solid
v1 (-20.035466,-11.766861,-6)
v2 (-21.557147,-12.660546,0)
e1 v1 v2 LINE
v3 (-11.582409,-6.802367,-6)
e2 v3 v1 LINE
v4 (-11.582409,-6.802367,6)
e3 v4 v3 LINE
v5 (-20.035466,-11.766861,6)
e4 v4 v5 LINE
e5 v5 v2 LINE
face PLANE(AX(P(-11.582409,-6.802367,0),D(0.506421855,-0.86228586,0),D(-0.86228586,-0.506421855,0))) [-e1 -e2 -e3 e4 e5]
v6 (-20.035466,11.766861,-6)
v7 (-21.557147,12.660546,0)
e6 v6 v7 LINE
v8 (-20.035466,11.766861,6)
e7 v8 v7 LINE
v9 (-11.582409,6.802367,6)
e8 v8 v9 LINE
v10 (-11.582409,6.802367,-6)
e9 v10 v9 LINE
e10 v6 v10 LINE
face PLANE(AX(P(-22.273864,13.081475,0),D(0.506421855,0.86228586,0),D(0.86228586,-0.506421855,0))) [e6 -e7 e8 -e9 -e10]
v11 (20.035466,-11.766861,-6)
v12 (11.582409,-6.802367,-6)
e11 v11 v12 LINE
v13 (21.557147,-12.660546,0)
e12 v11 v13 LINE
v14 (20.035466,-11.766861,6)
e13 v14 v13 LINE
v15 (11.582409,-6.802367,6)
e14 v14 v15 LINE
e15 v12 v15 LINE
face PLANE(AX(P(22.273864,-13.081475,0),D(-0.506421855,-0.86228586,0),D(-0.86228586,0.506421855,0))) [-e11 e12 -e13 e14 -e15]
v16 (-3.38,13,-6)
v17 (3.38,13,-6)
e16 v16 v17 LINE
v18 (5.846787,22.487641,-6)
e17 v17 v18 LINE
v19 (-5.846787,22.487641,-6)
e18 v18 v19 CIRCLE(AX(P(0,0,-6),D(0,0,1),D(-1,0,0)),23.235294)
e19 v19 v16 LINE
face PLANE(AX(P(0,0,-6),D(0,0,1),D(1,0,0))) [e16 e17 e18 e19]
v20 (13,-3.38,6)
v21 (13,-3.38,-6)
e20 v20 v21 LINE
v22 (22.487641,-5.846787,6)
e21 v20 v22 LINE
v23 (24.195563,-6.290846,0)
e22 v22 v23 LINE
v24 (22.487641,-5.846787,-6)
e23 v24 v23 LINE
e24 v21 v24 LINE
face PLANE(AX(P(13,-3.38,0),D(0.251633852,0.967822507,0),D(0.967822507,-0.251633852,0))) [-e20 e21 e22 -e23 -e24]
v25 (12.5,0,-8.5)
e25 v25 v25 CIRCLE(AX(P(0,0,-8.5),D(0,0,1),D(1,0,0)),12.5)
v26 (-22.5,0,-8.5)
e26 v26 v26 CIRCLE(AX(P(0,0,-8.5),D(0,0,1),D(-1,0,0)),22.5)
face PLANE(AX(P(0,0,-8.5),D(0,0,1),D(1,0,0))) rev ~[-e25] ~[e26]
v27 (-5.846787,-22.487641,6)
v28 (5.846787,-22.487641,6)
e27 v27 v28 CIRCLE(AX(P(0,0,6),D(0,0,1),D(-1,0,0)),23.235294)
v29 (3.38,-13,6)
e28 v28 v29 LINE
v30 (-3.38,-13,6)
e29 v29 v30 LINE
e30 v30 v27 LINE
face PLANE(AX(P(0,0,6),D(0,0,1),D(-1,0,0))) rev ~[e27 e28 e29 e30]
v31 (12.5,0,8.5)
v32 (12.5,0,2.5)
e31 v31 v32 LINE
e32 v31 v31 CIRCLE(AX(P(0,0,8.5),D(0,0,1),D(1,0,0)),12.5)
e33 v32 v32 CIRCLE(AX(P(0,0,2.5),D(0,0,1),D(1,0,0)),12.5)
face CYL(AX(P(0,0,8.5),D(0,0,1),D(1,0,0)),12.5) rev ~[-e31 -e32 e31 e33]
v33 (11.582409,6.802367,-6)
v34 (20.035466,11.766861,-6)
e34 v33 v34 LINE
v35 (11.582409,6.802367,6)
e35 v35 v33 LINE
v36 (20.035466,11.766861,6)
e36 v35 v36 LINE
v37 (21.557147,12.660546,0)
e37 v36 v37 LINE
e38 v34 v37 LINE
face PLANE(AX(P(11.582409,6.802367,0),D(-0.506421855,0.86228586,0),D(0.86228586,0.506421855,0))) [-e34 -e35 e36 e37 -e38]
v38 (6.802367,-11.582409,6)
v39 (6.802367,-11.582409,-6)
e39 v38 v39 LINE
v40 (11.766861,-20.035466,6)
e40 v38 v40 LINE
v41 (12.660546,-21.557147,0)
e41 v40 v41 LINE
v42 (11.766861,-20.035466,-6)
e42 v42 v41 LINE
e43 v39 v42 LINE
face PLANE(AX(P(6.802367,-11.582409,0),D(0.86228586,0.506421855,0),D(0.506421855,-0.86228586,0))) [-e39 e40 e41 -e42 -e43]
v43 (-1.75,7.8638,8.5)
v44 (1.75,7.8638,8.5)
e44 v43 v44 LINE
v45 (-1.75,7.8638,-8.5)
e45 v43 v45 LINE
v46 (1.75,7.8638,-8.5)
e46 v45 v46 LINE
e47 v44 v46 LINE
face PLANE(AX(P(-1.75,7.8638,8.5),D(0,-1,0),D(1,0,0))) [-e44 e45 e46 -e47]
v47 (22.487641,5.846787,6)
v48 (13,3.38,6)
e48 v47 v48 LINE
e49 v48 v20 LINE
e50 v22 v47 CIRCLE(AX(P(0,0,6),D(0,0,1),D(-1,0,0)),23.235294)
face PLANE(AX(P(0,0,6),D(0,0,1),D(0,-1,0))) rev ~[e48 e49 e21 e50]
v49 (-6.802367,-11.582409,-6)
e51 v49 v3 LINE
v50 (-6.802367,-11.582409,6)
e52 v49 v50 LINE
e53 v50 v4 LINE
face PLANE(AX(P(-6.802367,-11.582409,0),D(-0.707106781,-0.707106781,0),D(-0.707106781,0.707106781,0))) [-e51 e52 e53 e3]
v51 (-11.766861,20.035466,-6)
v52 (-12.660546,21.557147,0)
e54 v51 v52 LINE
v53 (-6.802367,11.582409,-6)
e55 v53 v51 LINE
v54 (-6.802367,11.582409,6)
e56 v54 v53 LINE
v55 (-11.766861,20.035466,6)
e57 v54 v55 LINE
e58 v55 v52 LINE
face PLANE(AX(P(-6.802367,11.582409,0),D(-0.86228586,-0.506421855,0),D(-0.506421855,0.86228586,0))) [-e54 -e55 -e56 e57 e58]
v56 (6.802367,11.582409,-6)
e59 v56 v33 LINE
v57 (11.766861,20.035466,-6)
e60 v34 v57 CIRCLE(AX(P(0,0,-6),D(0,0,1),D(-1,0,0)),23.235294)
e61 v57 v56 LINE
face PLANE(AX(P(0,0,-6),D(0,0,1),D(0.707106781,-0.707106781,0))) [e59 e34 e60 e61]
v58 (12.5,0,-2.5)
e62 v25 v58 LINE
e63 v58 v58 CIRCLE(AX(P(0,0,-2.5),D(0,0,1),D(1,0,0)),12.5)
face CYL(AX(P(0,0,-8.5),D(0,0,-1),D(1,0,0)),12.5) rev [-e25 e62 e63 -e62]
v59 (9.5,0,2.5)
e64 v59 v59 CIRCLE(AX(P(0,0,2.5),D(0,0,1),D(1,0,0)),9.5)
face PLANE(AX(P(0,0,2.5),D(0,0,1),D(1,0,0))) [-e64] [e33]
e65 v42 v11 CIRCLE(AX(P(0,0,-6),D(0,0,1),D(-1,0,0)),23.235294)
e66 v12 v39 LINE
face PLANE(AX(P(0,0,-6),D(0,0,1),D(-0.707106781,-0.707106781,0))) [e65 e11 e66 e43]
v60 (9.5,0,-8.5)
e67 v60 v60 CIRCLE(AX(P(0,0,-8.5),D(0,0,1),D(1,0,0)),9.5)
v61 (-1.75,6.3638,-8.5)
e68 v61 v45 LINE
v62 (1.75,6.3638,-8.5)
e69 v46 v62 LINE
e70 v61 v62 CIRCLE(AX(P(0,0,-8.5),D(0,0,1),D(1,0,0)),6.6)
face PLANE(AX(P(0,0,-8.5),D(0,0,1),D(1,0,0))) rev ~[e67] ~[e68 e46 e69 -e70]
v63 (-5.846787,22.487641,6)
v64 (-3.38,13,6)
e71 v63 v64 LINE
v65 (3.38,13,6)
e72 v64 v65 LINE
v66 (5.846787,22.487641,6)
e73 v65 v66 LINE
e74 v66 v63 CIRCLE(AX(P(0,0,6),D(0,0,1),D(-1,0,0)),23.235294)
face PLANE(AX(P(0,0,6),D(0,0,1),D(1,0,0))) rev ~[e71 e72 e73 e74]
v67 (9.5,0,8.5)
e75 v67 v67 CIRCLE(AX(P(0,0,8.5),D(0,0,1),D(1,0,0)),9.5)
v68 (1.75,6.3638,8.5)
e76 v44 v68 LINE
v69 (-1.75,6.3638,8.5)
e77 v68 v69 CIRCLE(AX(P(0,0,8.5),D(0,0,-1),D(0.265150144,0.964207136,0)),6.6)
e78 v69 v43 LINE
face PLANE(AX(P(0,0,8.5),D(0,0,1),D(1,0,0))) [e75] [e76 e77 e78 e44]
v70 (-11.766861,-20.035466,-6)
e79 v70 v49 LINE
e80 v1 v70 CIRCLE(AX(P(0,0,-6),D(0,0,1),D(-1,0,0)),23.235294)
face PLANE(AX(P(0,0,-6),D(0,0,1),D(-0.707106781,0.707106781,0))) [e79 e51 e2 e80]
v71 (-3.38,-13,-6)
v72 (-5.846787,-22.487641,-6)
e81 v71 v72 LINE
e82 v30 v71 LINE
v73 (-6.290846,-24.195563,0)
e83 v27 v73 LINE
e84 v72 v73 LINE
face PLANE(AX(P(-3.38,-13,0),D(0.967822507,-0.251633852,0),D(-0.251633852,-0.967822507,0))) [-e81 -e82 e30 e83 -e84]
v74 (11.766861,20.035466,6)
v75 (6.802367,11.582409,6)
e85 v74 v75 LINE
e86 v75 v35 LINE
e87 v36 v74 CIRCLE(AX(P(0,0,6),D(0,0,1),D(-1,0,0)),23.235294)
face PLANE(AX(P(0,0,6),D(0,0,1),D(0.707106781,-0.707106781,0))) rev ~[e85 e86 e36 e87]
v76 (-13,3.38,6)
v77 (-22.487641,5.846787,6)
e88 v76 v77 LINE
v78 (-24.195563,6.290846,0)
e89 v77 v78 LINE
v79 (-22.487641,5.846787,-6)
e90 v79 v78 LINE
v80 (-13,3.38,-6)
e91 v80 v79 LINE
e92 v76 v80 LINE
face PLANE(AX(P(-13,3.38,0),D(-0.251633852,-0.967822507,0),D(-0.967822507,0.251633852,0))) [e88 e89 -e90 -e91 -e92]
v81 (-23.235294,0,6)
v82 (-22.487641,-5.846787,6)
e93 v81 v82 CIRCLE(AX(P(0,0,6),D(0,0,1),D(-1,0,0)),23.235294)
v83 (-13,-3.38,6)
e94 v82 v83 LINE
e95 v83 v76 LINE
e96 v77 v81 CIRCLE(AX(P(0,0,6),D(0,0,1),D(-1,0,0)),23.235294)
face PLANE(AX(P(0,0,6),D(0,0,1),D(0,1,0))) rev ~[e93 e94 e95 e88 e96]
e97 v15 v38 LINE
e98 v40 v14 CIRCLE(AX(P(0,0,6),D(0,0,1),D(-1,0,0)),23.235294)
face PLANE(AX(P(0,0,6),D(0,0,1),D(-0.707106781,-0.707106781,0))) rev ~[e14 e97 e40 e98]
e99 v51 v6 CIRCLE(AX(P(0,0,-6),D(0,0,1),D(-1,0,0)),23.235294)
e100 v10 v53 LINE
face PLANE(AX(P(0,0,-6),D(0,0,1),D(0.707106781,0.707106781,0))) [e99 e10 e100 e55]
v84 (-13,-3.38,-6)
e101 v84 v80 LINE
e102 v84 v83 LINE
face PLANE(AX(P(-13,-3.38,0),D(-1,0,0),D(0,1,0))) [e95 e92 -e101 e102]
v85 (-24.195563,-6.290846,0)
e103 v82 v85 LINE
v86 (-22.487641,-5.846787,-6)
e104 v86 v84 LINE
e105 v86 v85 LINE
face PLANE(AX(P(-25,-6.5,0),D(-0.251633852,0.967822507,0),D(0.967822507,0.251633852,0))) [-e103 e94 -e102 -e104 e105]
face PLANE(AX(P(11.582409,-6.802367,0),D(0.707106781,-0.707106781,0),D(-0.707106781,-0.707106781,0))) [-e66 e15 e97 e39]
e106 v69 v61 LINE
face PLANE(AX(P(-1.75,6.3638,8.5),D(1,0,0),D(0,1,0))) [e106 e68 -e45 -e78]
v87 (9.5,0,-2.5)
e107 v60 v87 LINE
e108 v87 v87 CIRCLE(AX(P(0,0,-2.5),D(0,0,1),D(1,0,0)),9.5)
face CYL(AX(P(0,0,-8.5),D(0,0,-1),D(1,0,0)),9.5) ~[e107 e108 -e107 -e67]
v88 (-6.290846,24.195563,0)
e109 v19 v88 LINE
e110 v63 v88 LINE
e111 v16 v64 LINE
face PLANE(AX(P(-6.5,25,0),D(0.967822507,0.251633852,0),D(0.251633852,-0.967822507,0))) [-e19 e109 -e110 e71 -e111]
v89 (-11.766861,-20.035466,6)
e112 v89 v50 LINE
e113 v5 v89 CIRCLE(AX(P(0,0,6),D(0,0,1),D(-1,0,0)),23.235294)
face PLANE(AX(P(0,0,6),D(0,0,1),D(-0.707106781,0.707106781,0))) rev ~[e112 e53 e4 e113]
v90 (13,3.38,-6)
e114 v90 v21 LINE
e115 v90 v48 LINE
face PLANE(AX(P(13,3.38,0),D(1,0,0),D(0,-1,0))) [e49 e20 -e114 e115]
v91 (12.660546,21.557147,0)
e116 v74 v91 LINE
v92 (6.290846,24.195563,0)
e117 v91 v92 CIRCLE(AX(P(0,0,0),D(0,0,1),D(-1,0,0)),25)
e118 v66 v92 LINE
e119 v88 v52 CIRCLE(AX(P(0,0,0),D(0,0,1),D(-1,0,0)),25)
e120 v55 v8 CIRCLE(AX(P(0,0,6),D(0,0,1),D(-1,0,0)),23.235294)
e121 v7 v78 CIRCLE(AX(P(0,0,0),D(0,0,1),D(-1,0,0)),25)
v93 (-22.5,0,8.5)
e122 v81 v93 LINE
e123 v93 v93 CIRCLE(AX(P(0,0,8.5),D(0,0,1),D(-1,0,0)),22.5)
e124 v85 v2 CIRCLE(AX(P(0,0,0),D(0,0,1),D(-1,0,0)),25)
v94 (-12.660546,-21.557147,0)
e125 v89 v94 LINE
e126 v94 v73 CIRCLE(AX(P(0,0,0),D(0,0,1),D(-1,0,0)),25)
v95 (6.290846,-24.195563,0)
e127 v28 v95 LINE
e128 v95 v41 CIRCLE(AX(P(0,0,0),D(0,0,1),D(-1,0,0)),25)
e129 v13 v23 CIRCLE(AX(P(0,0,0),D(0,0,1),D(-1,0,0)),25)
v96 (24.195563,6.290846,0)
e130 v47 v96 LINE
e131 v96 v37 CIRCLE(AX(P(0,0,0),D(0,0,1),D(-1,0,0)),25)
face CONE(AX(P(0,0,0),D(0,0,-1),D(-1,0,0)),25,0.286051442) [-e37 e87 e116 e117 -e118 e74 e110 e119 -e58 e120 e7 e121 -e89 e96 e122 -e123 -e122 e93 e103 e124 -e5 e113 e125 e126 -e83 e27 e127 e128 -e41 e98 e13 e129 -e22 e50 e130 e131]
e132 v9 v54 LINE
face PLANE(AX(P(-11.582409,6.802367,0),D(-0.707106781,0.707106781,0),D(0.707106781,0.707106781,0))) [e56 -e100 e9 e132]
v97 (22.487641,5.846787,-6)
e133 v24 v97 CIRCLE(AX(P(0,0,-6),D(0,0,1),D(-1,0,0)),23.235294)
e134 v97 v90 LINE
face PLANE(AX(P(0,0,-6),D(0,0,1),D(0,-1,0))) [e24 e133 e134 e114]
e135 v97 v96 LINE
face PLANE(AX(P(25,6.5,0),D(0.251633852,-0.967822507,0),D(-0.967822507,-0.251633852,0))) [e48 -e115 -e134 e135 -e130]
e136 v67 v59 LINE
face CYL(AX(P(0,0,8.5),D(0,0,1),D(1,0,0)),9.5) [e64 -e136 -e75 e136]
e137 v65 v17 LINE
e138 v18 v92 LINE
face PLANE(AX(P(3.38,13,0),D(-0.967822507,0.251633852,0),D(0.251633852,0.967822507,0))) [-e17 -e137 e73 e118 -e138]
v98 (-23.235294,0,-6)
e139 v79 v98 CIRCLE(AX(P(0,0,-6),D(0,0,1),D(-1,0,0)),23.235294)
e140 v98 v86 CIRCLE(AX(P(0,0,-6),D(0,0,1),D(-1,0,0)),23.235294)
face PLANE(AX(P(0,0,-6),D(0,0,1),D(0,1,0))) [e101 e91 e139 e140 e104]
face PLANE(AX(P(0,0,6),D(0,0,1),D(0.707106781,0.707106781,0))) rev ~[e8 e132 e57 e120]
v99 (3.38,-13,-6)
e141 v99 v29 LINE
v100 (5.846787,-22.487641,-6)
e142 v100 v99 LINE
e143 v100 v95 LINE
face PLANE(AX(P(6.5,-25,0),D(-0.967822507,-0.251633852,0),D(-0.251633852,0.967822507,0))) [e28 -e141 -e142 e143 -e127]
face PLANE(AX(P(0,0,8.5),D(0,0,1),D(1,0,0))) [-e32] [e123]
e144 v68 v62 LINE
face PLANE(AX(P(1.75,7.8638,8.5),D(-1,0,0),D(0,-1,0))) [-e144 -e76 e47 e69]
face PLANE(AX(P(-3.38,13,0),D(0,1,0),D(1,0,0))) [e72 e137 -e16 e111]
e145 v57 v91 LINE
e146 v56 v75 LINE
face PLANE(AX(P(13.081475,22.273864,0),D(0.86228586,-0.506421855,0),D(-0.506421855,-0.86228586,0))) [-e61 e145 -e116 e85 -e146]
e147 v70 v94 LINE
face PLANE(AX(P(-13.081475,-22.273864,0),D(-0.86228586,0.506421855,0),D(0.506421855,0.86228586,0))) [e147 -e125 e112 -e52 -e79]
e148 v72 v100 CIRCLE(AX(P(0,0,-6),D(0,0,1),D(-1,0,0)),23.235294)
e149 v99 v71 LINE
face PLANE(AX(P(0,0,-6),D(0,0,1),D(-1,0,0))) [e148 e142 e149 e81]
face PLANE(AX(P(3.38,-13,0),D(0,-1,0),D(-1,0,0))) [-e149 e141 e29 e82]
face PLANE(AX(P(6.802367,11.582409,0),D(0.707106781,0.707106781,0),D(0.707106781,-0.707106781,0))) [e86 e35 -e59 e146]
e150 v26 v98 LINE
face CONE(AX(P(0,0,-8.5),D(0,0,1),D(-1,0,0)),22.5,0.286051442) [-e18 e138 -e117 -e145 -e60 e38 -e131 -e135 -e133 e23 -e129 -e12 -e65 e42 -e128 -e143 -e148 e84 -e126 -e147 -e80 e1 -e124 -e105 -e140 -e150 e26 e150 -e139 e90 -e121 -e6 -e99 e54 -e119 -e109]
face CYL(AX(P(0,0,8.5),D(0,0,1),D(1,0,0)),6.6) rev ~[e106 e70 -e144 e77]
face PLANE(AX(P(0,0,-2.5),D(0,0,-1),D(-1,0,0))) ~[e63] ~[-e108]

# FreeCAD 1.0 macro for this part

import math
import FreeCAD as App
import Part
import Sketcher
from FreeCAD import Vector
Q = App.Units.Quantity


def add_polygon(sketch, points):
    """Adds a closed chain of lines whose ends are joined by coincident constraints."""
    first, n = sketch.GeometryCount, len(points)
    for a, b in zip(points, points[1:] + points[:1]):
        sketch.addGeometry(Part.LineSegment(App.Vector(*a, 0), App.Vector(*b, 0)), False)
    for i in range(n):
        sketch.addConstraint(Sketcher.Constraint("Coincident", first + i, 2, first + (i + 1) % n, 1))

doc = App.newDocument("Part")
params = doc.addObject("Spreadsheet::Sheet", "Params")
for row, (alias, value) in enumerate([
    ("sketch1_diameter", "45 mm"),
    ("pad1_length", "17 mm"),
    ("sketch2_radius", "6.6 mm"),
    ("sketch2_width", "3.5 mm"),
    ("sketch2_height", "1.5 mm"),
    ("sketch3_diameter", "19 mm"),
    ("sketch3_diameter2", "25 mm"),
    ("pocket2_length", "6 mm"),
    ("sketch4_height", "17 mm"),
    ("revolution_angle", "360 deg"),
    ("sketch5_width", "13 mm"),
    ("sketch5_width2", "6.76 mm"),
    ("pocket3_length", "12 mm"),
], start=1):
    params.set(f"A{row}", alias)
    params.set(f"B{row}", "=" + value)
    params.setAlias(f"B{row}", alias)

body = doc.addObject("PartDesign::Body", "Body")

# Sketch on XY plane
sketch1 = doc.addObject("Sketcher::SketchObject", "Sketch")
body.addObject(sketch1)
sketch1.AttachmentSupport = (doc.XY_Plane, [""])
sketch1.MapMode = "FlatFace"
sketch1.addGeometry(Part.Circle(Vector(0, 0, 0), Vector(0, 0, 1), 22), False)
sketch1.addConstraint([
    Sketcher.Constraint("Coincident", 0, 3, -1, 1),
    Sketcher.Constraint("Diameter", 0, Q("45 mm")),
])
sketch1.setExpression("Constraints[1]", "Params.sketch1_diameter")
pad1 = doc.addObject("PartDesign::Pad", "Pad")
body.addObject(pad1)
pad1.Profile = sketch1
pad1.setExpression("Length", "Params.pad1_length")
pad1.Midplane = True

# Sketch on XY plane
sketch2 = doc.addObject("Sketcher::SketchObject", "Sketch001")
body.addObject(sketch2)
sketch2.AttachmentSupport = (doc.XY_Plane, [""])
sketch2.MapMode = "FlatFace"
sketch2.AttachmentOffset = App.Placement(Vector(0, 0, 8.5), App.Rotation())
sketch2.addGeometry([
    Part.ArcOfCircle(Part.Circle(Vector(0, 0, 0), Vector(0, 0, 1), 6.6), math.radians(105), math.radians(435)),
    Part.LineSegment(Vector(1.8, 6.4, 0), Vector(1.8, 7.9, 0)),
    Part.LineSegment(Vector(1.8, 7.9, 0), Vector(-1.8, 7.9, 0)),
    Part.LineSegment(Vector(-1.8, 7.9, 0), Vector(-1.8, 6.4, 0)),
], False)
sketch2.addConstraint([
    Sketcher.Constraint("Coincident", 0, 2, 1, 1),
    Sketcher.Constraint("Coincident", 1, 2, 2, 1),
    Sketcher.Constraint("Coincident", 2, 2, 3, 1),
    Sketcher.Constraint("Coincident", 3, 2, 0, 1),
    Sketcher.Constraint("Vertical", 1),
    Sketcher.Constraint("Horizontal", 2),
    Sketcher.Constraint("Vertical", 3),
    Sketcher.Constraint("Coincident", 0, 3, -1, 1),
    Sketcher.Constraint("Horizontal", 0, 2, 3, 2),
    Sketcher.Constraint("Radius", 0, Q("6.6 mm")),
    Sketcher.Constraint("DistanceX", 2, 2, 2, 1, Q("3.5 mm")),
    Sketcher.Constraint("DistanceY", 1, 1, 1, 2, Q("1.5 mm")),
])
sketch2.setExpression("Constraints[9]", "Params.sketch2_radius")
sketch2.setExpression("Constraints[10]", "Params.sketch2_width")
sketch2.setExpression("Constraints[11]", "Params.sketch2_height")
pocket1 = doc.addObject("PartDesign::Pocket", "Pocket")
body.addObject(pocket1)
pocket1.Profile = sketch2
pocket1.Type = "ThroughAll"

# Sketch on XY plane
sketch3 = doc.addObject("Sketcher::SketchObject", "Sketch002")
body.addObject(sketch3)
sketch3.AttachmentSupport = (doc.XY_Plane, [""])
sketch3.MapMode = "FlatFace"
sketch3.AttachmentOffset = App.Placement(Vector(0, 0, 8.5), App.Rotation())
sketch3.addGeometry([
    Part.Circle(Vector(0, 0, 0), Vector(0, 0, 1), 12),
    Part.Circle(Vector(0, 0, 0), Vector(0, 0, 1), 10),
], False)
sketch3.addConstraint([
    Sketcher.Constraint("Coincident", 0, 3, -1, 1),
    Sketcher.Constraint("Coincident", 1, 3, -1, 1),
    Sketcher.Constraint("Diameter", 1, Q("19 mm")),
    Sketcher.Constraint("Diameter", 0, Q("25 mm")),
])
sketch3.setExpression("Constraints[2]", "Params.sketch3_diameter")
sketch3.setExpression("Constraints[3]", "Params.sketch3_diameter2")
pocket2 = doc.addObject("PartDesign::Pocket", "Pocket001")
body.addObject(pocket2)
pocket2.Profile = sketch3
pocket2.setExpression("Length", "Params.pocket2_length")
doc.recompute()

mirrored = doc.addObject("PartDesign::Mirrored", "Mirrored")
body.addObject(mirrored)
mirrored.Originals = [pocket2]
mirrored.MirrorPlane = (doc.XY_Plane, [""])
body.Tip = mirrored

# Sketch on XZ plane
sketch4 = doc.addObject("Sketcher::SketchObject", "Sketch003")
body.addObject(sketch4)
sketch4.AttachmentSupport = (doc.XZ_Plane, [""])
sketch4.MapMode = "FlatFace"
add_polygon(sketch4, [(-22, -8), (-25, 0), (-22, 8)])  # lines 0-2
sketch4.addConstraint([
    Sketcher.Constraint("Vertical", 2),
    Sketcher.Constraint("PointOnObject", 0, 2, -1),
    Sketcher.Constraint("Equal", 0, 1),
    Sketcher.Constraint("DistanceX", 0, 2, 1, 2, Q("2.5 mm")),
    Sketcher.Constraint("DistanceY", 2, 2, 2, 1, Q("17 mm")),
    Sketcher.Constraint("DistanceX", 0, 2, -1, 1, Q("25 mm")),
])
sketch4.setExpression("Constraints[7]", "Params.sketch4_height")
revolution = doc.addObject("PartDesign::Revolution", "Revolution")
body.addObject(revolution)
revolution.Profile = sketch4
revolution.ReferenceAxis = (sketch4, ["V_Axis"])
revolution.setExpression("Angle", "Params.revolution_angle")

# Sketch on XY plane
sketch5 = doc.addObject("Sketcher::SketchObject", "Sketch004")
body.addObject(sketch5)
sketch5.AttachmentSupport = (doc.XY_Plane, [""])
sketch5.MapMode = "FlatFace"
add_polygon(sketch5, [(6, 25), (-6, 25), (-3, 13), (3, 13)])  # lines 0-3
sketch5.addConstraint([
    Sketcher.Constraint("Horizontal", 0),
    Sketcher.Constraint("Horizontal", 2),
    Sketcher.Constraint("Equal", 1, 3),
    Sketcher.Constraint("DistanceX", 0, 2, 0, 1, Q("13 mm")),
    Sketcher.Constraint("DistanceY", -1, 1, 1, 2, Q("13 mm")),
    Sketcher.Constraint("DistanceY", 1, 2, 0, 2, Q("12 mm")),
    Sketcher.Constraint("DistanceX", 2, 1, 2, 2, Q("6.76 mm")),
    Sketcher.Constraint("DistanceX", 0, 2, -1, 1, Q("6.5 mm")),
])
sketch5.setExpression("Constraints[7]", "Params.sketch5_width")
sketch5.setExpression("Constraints[10]", "Params.sketch5_width2")
pocket3 = doc.addObject("PartDesign::Pocket", "Pocket002")
body.addObject(pocket3)
pocket3.Profile = sketch5
pocket3.setExpression("Length", "Params.pocket3_length")
pocket3.Midplane = True
doc.recompute()

polarpattern = doc.addObject("PartDesign::PolarPattern", "PolarPattern")
body.addObject(polarpattern)
polarpattern.Originals = [pocket3]
polarpattern.Axis = (doc.Z_Axis, [""])
polarpattern.Angle = 360
polarpattern.Occurrences = 8
body.Tip = polarpattern

doc.recompute()
